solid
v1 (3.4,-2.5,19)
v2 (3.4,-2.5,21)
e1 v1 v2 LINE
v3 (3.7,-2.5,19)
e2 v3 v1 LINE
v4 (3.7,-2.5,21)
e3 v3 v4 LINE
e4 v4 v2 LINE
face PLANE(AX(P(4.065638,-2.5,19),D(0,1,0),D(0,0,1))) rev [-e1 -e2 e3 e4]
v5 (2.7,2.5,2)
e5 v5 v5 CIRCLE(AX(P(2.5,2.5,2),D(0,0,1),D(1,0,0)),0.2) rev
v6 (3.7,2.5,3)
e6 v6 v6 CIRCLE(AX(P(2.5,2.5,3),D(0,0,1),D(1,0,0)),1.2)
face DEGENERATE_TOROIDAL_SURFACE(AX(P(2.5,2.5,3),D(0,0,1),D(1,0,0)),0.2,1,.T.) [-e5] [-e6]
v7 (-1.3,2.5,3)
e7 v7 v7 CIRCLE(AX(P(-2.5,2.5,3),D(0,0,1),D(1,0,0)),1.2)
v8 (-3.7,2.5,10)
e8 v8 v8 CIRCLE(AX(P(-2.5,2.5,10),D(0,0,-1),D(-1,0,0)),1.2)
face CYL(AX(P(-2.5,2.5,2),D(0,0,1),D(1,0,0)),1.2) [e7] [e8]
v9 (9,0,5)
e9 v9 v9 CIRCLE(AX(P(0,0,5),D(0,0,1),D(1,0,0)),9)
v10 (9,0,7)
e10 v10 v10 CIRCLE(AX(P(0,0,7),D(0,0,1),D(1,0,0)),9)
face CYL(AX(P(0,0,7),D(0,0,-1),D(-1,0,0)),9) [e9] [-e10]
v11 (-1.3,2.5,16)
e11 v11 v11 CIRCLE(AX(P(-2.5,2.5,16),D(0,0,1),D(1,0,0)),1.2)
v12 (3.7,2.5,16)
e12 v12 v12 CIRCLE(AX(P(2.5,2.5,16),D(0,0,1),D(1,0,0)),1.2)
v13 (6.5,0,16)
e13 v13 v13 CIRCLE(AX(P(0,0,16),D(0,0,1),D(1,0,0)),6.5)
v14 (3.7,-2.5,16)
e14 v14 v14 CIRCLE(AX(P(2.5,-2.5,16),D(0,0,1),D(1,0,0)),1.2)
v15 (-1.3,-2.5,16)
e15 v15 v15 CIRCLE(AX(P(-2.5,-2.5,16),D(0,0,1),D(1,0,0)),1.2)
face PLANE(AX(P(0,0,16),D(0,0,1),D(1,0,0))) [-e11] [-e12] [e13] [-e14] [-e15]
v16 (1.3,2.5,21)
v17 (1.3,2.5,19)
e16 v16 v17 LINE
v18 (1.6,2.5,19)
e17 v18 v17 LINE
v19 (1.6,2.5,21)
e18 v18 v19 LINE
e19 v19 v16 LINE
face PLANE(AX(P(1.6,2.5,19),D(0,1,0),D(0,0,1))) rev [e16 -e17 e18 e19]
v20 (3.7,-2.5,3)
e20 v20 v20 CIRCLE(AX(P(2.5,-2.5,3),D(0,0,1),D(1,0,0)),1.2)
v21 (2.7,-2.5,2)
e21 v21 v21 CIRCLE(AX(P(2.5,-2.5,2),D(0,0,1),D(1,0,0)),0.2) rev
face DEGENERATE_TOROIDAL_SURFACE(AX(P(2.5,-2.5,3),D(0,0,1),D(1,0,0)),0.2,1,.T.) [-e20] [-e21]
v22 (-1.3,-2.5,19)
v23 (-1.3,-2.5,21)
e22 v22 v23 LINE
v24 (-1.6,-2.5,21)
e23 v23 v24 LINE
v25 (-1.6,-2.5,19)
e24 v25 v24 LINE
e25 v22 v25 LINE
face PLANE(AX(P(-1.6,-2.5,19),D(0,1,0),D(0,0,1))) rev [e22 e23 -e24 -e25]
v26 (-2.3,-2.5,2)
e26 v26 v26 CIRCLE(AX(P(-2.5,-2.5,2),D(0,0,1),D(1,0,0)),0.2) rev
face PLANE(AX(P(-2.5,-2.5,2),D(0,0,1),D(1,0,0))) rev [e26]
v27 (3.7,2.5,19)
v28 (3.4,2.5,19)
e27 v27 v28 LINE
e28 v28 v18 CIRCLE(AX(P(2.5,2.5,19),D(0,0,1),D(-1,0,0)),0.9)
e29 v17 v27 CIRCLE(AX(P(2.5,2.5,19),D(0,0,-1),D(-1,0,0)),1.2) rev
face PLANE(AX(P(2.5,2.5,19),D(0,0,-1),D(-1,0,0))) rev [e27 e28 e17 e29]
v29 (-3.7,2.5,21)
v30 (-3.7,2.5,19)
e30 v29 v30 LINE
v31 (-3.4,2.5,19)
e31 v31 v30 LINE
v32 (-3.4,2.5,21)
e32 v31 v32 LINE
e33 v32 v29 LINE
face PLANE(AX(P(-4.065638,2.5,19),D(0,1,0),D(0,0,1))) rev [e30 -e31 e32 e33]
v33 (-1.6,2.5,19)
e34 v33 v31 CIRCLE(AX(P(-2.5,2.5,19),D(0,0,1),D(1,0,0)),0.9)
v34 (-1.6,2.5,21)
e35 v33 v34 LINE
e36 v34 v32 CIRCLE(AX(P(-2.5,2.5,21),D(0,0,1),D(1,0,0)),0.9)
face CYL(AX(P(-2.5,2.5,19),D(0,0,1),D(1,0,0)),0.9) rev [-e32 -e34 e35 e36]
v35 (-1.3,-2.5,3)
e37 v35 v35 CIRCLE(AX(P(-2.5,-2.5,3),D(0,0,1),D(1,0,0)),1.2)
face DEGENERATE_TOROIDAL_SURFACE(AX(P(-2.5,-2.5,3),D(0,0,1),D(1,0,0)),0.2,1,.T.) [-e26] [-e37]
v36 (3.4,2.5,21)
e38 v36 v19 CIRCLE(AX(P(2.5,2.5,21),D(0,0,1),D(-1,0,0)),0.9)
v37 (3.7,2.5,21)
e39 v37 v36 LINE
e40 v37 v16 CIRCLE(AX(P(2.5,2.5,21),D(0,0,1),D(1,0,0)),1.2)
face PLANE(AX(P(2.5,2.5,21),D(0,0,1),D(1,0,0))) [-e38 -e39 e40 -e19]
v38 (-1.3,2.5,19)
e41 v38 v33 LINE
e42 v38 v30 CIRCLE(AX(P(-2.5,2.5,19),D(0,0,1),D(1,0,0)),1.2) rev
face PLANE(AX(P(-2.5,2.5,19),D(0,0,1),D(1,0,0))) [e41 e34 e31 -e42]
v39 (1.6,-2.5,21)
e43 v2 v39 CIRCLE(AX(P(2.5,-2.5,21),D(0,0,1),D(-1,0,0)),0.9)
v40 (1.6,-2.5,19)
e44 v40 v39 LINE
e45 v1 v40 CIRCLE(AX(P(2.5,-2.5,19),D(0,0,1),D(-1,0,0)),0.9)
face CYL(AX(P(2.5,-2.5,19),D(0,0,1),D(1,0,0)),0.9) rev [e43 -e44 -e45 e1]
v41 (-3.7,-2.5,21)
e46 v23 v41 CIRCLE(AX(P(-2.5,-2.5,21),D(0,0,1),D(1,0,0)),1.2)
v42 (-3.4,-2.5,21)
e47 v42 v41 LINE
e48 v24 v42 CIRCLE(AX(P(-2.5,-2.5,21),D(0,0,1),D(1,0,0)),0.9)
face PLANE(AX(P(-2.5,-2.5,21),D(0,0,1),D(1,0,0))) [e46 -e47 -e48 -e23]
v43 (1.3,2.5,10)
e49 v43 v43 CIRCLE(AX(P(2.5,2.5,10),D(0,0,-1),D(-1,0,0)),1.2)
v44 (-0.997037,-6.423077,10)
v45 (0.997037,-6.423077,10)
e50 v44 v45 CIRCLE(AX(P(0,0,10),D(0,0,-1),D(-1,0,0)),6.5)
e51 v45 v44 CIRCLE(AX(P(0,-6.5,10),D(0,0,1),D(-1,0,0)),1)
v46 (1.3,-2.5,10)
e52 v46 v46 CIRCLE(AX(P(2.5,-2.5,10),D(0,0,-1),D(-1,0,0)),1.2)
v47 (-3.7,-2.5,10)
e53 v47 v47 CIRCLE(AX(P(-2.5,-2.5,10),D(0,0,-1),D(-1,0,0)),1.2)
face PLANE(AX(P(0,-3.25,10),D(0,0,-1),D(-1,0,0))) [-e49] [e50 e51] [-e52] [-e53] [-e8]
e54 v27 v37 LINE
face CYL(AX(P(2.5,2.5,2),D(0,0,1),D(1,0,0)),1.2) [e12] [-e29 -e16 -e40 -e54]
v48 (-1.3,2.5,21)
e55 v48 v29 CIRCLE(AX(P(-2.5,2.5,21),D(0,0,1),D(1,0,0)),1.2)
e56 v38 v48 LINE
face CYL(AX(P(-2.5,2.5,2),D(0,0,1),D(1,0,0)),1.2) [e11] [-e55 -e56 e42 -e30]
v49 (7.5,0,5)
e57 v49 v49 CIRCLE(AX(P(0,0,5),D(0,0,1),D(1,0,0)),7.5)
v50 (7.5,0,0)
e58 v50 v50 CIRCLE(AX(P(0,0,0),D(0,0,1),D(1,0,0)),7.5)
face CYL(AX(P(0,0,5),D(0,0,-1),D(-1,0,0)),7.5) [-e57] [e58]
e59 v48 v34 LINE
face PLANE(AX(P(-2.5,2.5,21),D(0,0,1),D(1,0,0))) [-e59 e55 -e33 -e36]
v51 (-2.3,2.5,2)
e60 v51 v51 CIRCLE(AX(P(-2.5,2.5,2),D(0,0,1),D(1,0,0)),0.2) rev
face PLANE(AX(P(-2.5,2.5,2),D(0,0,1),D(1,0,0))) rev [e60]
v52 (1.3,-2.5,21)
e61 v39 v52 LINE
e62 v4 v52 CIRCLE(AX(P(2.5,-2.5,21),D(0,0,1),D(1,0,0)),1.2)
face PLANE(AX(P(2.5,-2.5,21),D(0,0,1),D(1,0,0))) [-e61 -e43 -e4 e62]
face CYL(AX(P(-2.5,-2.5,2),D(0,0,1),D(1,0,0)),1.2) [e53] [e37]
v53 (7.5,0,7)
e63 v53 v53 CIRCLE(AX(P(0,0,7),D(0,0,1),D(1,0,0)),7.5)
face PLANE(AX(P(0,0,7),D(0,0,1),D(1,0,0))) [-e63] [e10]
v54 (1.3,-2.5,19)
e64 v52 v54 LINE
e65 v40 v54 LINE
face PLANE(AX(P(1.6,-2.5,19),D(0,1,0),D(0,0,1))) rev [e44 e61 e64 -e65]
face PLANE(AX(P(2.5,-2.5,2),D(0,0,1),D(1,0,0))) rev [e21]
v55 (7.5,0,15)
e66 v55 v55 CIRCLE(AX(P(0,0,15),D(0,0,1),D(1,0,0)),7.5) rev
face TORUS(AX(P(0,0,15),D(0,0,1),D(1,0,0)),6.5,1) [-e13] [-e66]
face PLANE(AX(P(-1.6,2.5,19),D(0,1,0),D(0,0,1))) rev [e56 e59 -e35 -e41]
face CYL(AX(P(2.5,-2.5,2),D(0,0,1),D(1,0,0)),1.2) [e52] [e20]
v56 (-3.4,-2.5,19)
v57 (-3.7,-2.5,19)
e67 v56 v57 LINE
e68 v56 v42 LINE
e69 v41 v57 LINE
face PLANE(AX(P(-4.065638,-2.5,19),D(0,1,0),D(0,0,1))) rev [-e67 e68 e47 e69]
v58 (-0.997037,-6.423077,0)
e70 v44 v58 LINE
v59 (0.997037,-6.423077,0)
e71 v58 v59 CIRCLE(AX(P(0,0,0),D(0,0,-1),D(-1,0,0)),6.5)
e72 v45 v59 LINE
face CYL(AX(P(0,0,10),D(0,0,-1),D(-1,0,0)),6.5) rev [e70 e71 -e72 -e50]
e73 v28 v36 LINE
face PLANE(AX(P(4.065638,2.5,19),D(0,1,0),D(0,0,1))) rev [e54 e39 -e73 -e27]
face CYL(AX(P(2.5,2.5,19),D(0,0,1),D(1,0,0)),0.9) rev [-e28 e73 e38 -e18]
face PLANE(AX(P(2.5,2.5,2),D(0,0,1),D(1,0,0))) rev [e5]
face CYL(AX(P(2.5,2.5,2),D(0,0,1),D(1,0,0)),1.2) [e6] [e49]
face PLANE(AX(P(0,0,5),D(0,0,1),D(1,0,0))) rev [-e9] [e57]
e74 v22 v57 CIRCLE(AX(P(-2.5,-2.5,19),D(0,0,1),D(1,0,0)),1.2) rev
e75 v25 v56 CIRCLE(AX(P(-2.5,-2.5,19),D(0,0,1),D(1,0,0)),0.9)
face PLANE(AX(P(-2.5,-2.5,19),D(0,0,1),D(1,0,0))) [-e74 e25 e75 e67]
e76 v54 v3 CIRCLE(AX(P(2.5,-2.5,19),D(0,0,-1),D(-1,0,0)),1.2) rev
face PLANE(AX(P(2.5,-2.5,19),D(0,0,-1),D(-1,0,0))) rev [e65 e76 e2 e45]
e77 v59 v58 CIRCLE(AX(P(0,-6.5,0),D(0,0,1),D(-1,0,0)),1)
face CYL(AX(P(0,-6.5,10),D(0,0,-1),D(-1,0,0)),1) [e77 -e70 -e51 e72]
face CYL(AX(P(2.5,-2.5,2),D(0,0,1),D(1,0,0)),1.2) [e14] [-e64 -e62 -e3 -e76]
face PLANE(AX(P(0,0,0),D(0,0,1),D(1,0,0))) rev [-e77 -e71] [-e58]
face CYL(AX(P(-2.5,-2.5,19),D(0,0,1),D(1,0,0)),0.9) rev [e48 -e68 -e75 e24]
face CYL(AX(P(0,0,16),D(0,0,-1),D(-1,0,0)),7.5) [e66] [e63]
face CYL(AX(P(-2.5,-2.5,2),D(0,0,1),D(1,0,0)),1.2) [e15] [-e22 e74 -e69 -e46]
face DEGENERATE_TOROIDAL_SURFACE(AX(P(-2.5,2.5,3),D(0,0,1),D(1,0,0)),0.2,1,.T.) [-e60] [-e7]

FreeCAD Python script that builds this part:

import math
import FreeCAD as App
import Part
import Sketcher

V = App.Vector
Q = App.Units.Quantity


def edges_at(feature, points):
    """Names of the edges that pass closest to the given points."""
    edges = feature.Shape.Edges
    near = lambda p: min(range(len(edges)), key=lambda i: edges[i].distToShape(Part.Vertex(*p))[0])
    return sorted({f"Edge{near(p) + 1}" for p in points})

doc = App.newDocument("Part")
body = doc.addObject("PartDesign::Body", "Body")

# Sketch on XY plane
sketch1 = doc.addObject("Sketcher::SketchObject", "Sketch")
body.addObject(sketch1)
sketch1.AttachmentSupport = (doc.XY_Plane, [""])
sketch1.MapMode = "FlatFace"
sketch1.addGeometry(Part.Circle(V(0, 0, 0), V(0, 0, 1), 7.5), False)
sketch1.addConstraint([
    Sketcher.Constraint("Coincident", 0, 3, -1, 1),
    Sketcher.Constraint("Diameter", 0, Q("15 mm")),
])
pad1 = doc.addObject("PartDesign::Pad", "Pad")
body.addObject(pad1)
pad1.Profile = sketch1
pad1.Length = 5

# Sketch on XY plane
sketch2 = doc.addObject("Sketcher::SketchObject", "Sketch001")
body.addObject(sketch2)
sketch2.AttachmentSupport = (doc.XY_Plane, [""])
sketch2.MapMode = "FlatFace"
sketch2.AttachmentOffset = App.Placement(V(0, 0, 5), App.Rotation())
sketch2.addGeometry(Part.Circle(V(0, 0, 0), V(0, 0, 1), 9), False)
sketch2.addConstraint([
    Sketcher.Constraint("Coincident", 0, 3, -1, 1),
    Sketcher.Constraint("Diameter", 0, Q("18 mm")),
])
pad2 = doc.addObject("PartDesign::Pad", "Pad001")
body.addObject(pad2)
pad2.Profile = sketch2
pad2.Length = 2

# Sketch on XY plane
sketch3 = doc.addObject("Sketcher::SketchObject", "Sketch002")
body.addObject(sketch3)
sketch3.AttachmentSupport = (doc.XY_Plane, [""])
sketch3.MapMode = "FlatFace"
sketch3.AttachmentOffset = App.Placement(V(0, 0, 7), App.Rotation())
sketch3.addGeometry(Part.Circle(V(0, 0, 0), V(0, 0, 1), 7.5), False)
sketch3.addConstraint([
    Sketcher.Constraint("Coincident", 0, 3, -1, 1),
    Sketcher.Constraint("Diameter", 0, Q("15 mm")),
])
pad3 = doc.addObject("PartDesign::Pad", "Pad002")
body.addObject(pad3)
pad3.Profile = sketch3
pad3.Length = 9

# Sketch on XY plane
sketch4 = doc.addObject("Sketcher::SketchObject", "Sketch003")
body.addObject(sketch4)
sketch4.AttachmentSupport = (doc.XY_Plane, [""])
sketch4.MapMode = "FlatFace"
sketch4.addGeometry([
    Part.ArcOfCircle(Part.Circle(V(0, 0, 0), V(0, 0, 1), 6.5), math.radians(-81.176548), math.radians(261.176548)),
    Part.ArcOfCircle(Part.Circle(V(0, -6.5, 0), V(0, 0, 1), 1), math.radians(4.411726), math.radians(175.588274)),
], False)
sketch4.addConstraint([
    Sketcher.Constraint("Coincident", 0, 1, 1, 1),
    Sketcher.Constraint("Coincident", 1, 2, 0, 2),
    Sketcher.Constraint("Coincident", 0, 3, -1, 1),
    Sketcher.Constraint("PointOnObject", 1, 3, -2),
    Sketcher.Constraint("Radius", 1, Q("1 mm")),
    Sketcher.Constraint("Radius", 0, Q("6.5 mm")),
    Sketcher.Constraint("DistanceY", 1, 3, -1, 1, Q("6.5 mm")),
])
pocket1 = doc.addObject("PartDesign::Pocket", "Pocket")
body.addObject(pocket1)
pocket1.Profile = sketch4
pocket1.Length = 10
pocket1.Reversed = True

# Sketch on XY plane
sketch5 = doc.addObject("Sketcher::SketchObject", "Sketch004")
body.addObject(sketch5)
sketch5.AttachmentSupport = (doc.XY_Plane, [""])
sketch5.MapMode = "FlatFace"
sketch5.AttachmentOffset = App.Placement(V(0, 0, 16), App.Rotation())
sketch5.addGeometry([
    Part.Circle(V(-2.5, 2.5, 0), V(0, 0, 1), 1.2),
    Part.Circle(V(-2.5, -2.5, 0), V(0, 0, 1), 1.2),
    Part.Circle(V(2.5, -2.5, 0), V(0, 0, 1), 1.2),
    Part.Circle(V(2.5, 2.5, 0), V(0, 0, 1), 1.2),
], False)
sketch5.addConstraint([
    Sketcher.Constraint("Equal", 0, 1),
    Sketcher.Constraint("Equal", 1, 2),
    Sketcher.Constraint("Equal", 2, 3),
    Sketcher.Constraint("Symmetric", 0, 3, 2, 3, -1, 1),
    Sketcher.Constraint("Symmetric", 1, 3, 3, 3, -1, 1),
    Sketcher.Constraint("Symmetric", 1, 3, 2, 3, -2),
    Sketcher.Constraint("Diameter", 0, Q("2.4 mm")),
    Sketcher.Constraint("DistanceY", 1, 3, 0, 3, Q("5 mm")),
    Sketcher.Constraint("DistanceX", 1, 3, 2, 3, Q("5 mm")),
])
pad4 = doc.addObject("PartDesign::Pad", "Pad003")
body.addObject(pad4)
pad4.Profile = sketch5
pad4.Type = "TwoLengths"
pad4.Length = 5
pad4.Length2 = 14

# Sketch on XY plane
sketch6 = doc.addObject("Sketcher::SketchObject", "Sketch005")
body.addObject(sketch6)
sketch6.AttachmentSupport = (doc.XY_Plane, [""])
sketch6.MapMode = "FlatFace"
sketch6.AttachmentOffset = App.Placement(V(0, 0, 21), App.Rotation())
sketch6.addGeometry([
    Part.LineSegment(V(-3.4, 2.5, 0), V(-4.065638, 2.5, 0)),  # 0
    Part.LineSegment(V(-4.065638, 2.5, 0), V(-3.304903, 1.110238, 0)),  # 1
    Part.LineSegment(V(-3.304903, 1.110238, 0), V(-1.813266, 1.110238, 0)),  # 2
    Part.LineSegment(V(-1.813266, 1.110238, 0), V(-1.022698, 2.5, 0)),  # 3
    Part.LineSegment(V(-1.022698, 2.5, 0), V(-1.6, 2.5, 0)),  # 4
    Part.ArcOfCircle(Part.Circle(V(-2.5, 2.5, 0), V(0, 0, 1), 0.9), math.radians(0), math.radians(180)),  # 5
    Part.LineSegment(V(1.6, 2.5, 0), V(1.022698, 2.5, 0)),  # 6
    Part.LineSegment(V(1.022698, 2.5, 0), V(1.813266, 1.110238, 0)),  # 7
    Part.LineSegment(V(1.813266, 1.110238, 0), V(3.304903, 1.110238, 0)),  # 8
    Part.LineSegment(V(3.304903, 1.110238, 0), V(4.065638, 2.5, 0)),  # 9
    Part.LineSegment(V(4.065638, 2.5, 0), V(3.4, 2.5, 0)),  # 10
    Part.ArcOfCircle(Part.Circle(V(2.5, 2.5, 0), V(0, 0, 1), 0.9), math.radians(0), math.radians(180)),  # 11
    Part.LineSegment(V(4.065638, -2.5, 0), V(3.4, -2.5, 0)),  # 12
    Part.ArcOfCircle(Part.Circle(V(2.5, -2.5, 0), V(0, 0, 1), 0.9), math.radians(0), math.radians(180)),  # 13
    Part.LineSegment(V(1.6, -2.5, 0), V(1.022698, -2.5, 0)),  # 14
    Part.LineSegment(V(1.022698, -2.5, 0), V(1.813266, -3.889762, 0)),  # 15
    Part.LineSegment(V(1.813266, -3.889762, 0), V(3.304903, -3.889762, 0)),  # 16
    Part.LineSegment(V(3.304903, -3.889762, 0), V(4.065638, -2.5, 0)),  # 17
    Part.LineSegment(V(-1.813266, -3.889762, 0), V(-1.022698, -2.5, 0)),  # 18
    Part.LineSegment(V(-1.022698, -2.5, 0), V(-1.6, -2.5, 0)),  # 19
    Part.ArcOfCircle(Part.Circle(V(-2.5, -2.5, 0), V(0, 0, 1), 0.9), math.radians(0), math.radians(180)),  # 20
    Part.LineSegment(V(-3.4, -2.5, 0), V(-4.065638, -2.5, 0)),  # 21
    Part.LineSegment(V(-4.065638, -2.5, 0), V(-3.304903, -3.889762, 0)),  # 22
    Part.LineSegment(V(-3.304903, -3.889762, 0), V(-1.813266, -3.889762, 0)),  # 23
], False)
sketch6.addConstraint([
    Sketcher.Constraint("Coincident", 0, 2, 1, 1),
    Sketcher.Constraint("Coincident", 1, 2, 2, 1),
    Sketcher.Constraint("Coincident", 2, 2, 3, 1),
    Sketcher.Constraint("Coincident", 3, 2, 4, 1),
    Sketcher.Constraint("Coincident", 4, 2, 5, 1),
    Sketcher.Constraint("Coincident", 5, 2, 0, 1),
    Sketcher.Constraint("Coincident", 6, 2, 7, 1),
    Sketcher.Constraint("Coincident", 7, 2, 8, 1),
    Sketcher.Constraint("Coincident", 8, 2, 9, 1),
    Sketcher.Constraint("Coincident", 9, 2, 10, 1),
    Sketcher.Constraint("Coincident", 10, 2, 11, 1),
    Sketcher.Constraint("Coincident", 11, 2, 6, 1),
    Sketcher.Constraint("Coincident", 12, 2, 13, 1),
    Sketcher.Constraint("Coincident", 13, 2, 14, 1),
    Sketcher.Constraint("Coincident", 14, 2, 15, 1),
    Sketcher.Constraint("Coincident", 15, 2, 16, 1),
    Sketcher.Constraint("Coincident", 16, 2, 17, 1),
    Sketcher.Constraint("Coincident", 17, 2, 12, 1),
    Sketcher.Constraint("Coincident", 18, 2, 19, 1),
    Sketcher.Constraint("Coincident", 19, 2, 20, 1),
    Sketcher.Constraint("Coincident", 20, 2, 21, 1),
    Sketcher.Constraint("Coincident", 21, 2, 22, 1),
    Sketcher.Constraint("Coincident", 22, 2, 23, 1),
    Sketcher.Constraint("Coincident", 23, 2, 18, 1),
    Sketcher.Constraint("Horizontal", 0),
    Sketcher.Constraint("Horizontal", 2),
    Sketcher.Constraint("Horizontal", 4),
    Sketcher.Constraint("Horizontal", 6),
    Sketcher.Constraint("Horizontal", 8),
    Sketcher.Constraint("Horizontal", 10),
    Sketcher.Constraint("Horizontal", 12),
    Sketcher.Constraint("Horizontal", 14),
    Sketcher.Constraint("Horizontal", 16),
    Sketcher.Constraint("Horizontal", 19),
    Sketcher.Constraint("Horizontal", 21),
    Sketcher.Constraint("Horizontal", 23),
    Sketcher.Constraint("Equal", 5, 11),
    Sketcher.Constraint("Equal", 11, 13),
    Sketcher.Constraint("Equal", 13, 20),
    Sketcher.Constraint("Symmetric", 5, 3, 13, 3, -1, 1),
    Sketcher.Constraint("Symmetric", 11, 3, 20, 3, -1, 1),
    Sketcher.Constraint("Symmetric", 3, 2, 14, 2, -1, 1),
    Sketcher.Constraint("Symmetric", 0, 2, 17, 2, -1, 1),
    Sketcher.Constraint("Symmetric", 6, 2, 18, 2, -1, 1),
    Sketcher.Constraint("Symmetric", 9, 2, 21, 2, -1, 1),
    Sketcher.Constraint("Symmetric", 5, 3, 11, 3, -2),
    Sketcher.Constraint("Symmetric", 3, 2, 6, 2, -2),
    Sketcher.Constraint("Symmetric", 2, 2, 7, 2, -2),
    Sketcher.Constraint("Symmetric", 0, 2, 9, 2, -2),
    Sketcher.Constraint("Symmetric", 16, 2, 22, 2, -2),
    Sketcher.Constraint("Parallel", 7, 15),
    Sketcher.Constraint("Parallel", 9, 17),
    Sketcher.Constraint("Parallel", 3, 18),
    Sketcher.Constraint("Parallel", 1, 22),
    Sketcher.Constraint("Horizontal", 11, 3, 0, 2),
    Sketcher.Constraint("Horizontal", 0, 2, 3, 2),
    Sketcher.Constraint("Vertical", 7, 2, 15, 2),
    Sketcher.Constraint("Radius", 5, Q("0.9 mm")),
    Sketcher.Constraint("DistanceX", 5, 3, 11, 3, Q("5 mm")),
    Sketcher.Constraint("DistanceY", 13, 3, 11, 3, Q("5 mm")),
    Sketcher.Constraint("DistanceX", 0, 2, 0, 1, Q("0.665638 mm")),
    Sketcher.Constraint("DistanceX", 3, 2, 8, 2, Q("4.327601 mm")),
    Sketcher.Constraint("DistanceX", 2, 1, 2, 2, Q("1.491638 mm")),
    Sketcher.Constraint("DistanceX", 4, 2, 4, 1, Q("0.577302 mm")),
    Sketcher.Constraint("DistanceY", -1, 1, 1, 2, Q("1.110238 mm")),
])
pocket2 = doc.addObject("PartDesign::Pocket", "Pocket001")
body.addObject(pocket2)
pocket2.Profile = sketch6
pocket2.Length = 2
doc.recompute()

fillet = doc.addObject("PartDesign::Fillet", "Fillet")
body.addObject(fillet)
fillet.Base = (pocket2, edges_at(pocket2, [
    (-3.7, 2.5, 2),
    (-3.7, -2.5, 2),
    (1.3, -2.5, 2),
    (1.3, 2.5, 2),
]))
fillet.Radius = 1
doc.recompute()

fillet2 = doc.addObject("PartDesign::Fillet", "Fillet001")
body.addObject(fillet2)
fillet2.Base = (fillet, edges_at(fillet, [(-7.5, 0, 16)]))
fillet2.Radius = 1

doc.recompute()
